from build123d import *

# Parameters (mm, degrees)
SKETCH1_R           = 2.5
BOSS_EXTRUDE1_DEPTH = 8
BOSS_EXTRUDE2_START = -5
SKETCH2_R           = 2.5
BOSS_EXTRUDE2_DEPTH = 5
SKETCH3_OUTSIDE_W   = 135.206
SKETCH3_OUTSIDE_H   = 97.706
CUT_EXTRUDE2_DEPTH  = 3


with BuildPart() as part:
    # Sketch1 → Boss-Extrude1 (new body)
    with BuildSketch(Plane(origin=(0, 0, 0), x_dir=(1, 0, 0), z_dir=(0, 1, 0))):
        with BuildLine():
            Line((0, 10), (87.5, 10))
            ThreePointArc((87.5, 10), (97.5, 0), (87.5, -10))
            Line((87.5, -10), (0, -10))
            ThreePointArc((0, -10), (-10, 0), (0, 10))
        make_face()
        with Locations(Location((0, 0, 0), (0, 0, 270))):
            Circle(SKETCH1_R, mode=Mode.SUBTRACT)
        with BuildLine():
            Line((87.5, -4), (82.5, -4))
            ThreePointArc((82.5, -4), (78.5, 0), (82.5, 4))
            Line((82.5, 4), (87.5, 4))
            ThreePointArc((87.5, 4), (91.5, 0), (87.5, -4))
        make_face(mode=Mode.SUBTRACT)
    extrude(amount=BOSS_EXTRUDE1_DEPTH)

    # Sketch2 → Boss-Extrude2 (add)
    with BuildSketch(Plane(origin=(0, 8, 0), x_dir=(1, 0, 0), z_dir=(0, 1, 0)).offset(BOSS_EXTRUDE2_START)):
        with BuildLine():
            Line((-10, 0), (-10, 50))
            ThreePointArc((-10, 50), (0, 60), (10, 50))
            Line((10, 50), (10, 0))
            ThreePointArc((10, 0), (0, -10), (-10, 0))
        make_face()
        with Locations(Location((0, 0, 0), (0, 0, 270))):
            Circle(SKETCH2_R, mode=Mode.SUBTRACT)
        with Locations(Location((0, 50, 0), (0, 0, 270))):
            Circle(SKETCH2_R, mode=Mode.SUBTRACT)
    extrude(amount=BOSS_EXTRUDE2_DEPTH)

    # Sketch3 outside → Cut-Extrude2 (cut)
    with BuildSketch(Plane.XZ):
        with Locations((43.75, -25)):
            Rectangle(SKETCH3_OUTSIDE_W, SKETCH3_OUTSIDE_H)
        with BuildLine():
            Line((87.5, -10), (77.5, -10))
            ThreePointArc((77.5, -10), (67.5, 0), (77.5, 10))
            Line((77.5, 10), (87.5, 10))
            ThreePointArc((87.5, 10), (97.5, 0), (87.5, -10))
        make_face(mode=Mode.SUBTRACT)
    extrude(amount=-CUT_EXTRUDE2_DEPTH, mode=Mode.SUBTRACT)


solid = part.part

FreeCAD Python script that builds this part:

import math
import FreeCAD as App
import Part
import Sketcher
from FreeCAD import Vector

doc = App.newDocument("Part")
body = doc.addObject("PartDesign::Body", "Body")

# Sketch on XZ plane
sketch1 = body.newObject("Sketcher::SketchObject", "Sketch")
sketch1.AttachmentSupport = (doc.getObject("XZ_Plane"), [""])
sketch1.MapMode = "FlatFace"
sketch1.addGeometry(Part.LineSegment(Vector(87.5, -10, 0), Vector(0, -10, 0)), False)
sketch1.addGeometry(Part.ArcOfCircle(Part.Circle(Vector(0, 0, 0), Vector(0, 0, 1), 10), math.radians(90), math.radians(270)), False)
sketch1.addGeometry(Part.LineSegment(Vector(0, 10, 0), Vector(87.5, 10, 0)), False)
sketch1.addGeometry(Part.ArcOfCircle(Part.Circle(Vector(87.5, 0, 0), Vector(0, 0, 1), 10), math.radians(-90), math.radians(90)), False)
sketch1.addGeometry(Part.LineSegment(Vector(87.5, 4, 0), Vector(82.5, 4, 0)), False)
sketch1.addGeometry(Part.ArcOfCircle(Part.Circle(Vector(82.5, 0, 0), Vector(0, 0, 1), 4), math.radians(90), math.radians(270)), False)
sketch1.addGeometry(Part.LineSegment(Vector(82.5, -4, 0), Vector(87.5, -4, 0)), False)
sketch1.addGeometry(Part.ArcOfCircle(Part.Circle(Vector(87.5, 0, 0), Vector(0, 0, 1), 4), math.radians(-90), math.radians(90)), False)
sketch1.addGeometry(Part.Circle(Vector(0, 0, 0), Vector(0, 0, 1), 2.5), False)
sketch1.addConstraint(Sketcher.Constraint("Tangent", 0, 2, 1, 2))
sketch1.addConstraint(Sketcher.Constraint("Tangent", 1, 1, 2, 1))
sketch1.addConstraint(Sketcher.Constraint("Tangent", 2, 2, 3, 2))
sketch1.addConstraint(Sketcher.Constraint("Tangent", 3, 1, 0, 1))
sketch1.addConstraint(Sketcher.Constraint("Tangent", 4, 2, 5, 1))
sketch1.addConstraint(Sketcher.Constraint("Tangent", 5, 2, 6, 1))
sketch1.addConstraint(Sketcher.Constraint("Tangent", 6, 2, 7, 1))
sketch1.addConstraint(Sketcher.Constraint("Tangent", 7, 2, 4, 1))
sketch1.addConstraint(Sketcher.Constraint("Horizontal", 0))
sketch1.addConstraint(Sketcher.Constraint("Horizontal", 2))
sketch1.addConstraint(Sketcher.Constraint("Horizontal", 4))
sketch1.addConstraint(Sketcher.Constraint("Horizontal", 6))
sketch1.addConstraint(Sketcher.Constraint("Coincident", 1, 3, -1, 1))
sketch1.addConstraint(Sketcher.Constraint("Coincident", 8, 3, -1, 1))
sketch1.addConstraint(Sketcher.Constraint("Coincident", 7, 3, 3, 3))
sketch1.addConstraint(Sketcher.Constraint("Diameter", 8, 5.0))
sketch1.addConstraint(Sketcher.Constraint("Radius", 1, 10.0))
sketch1.addConstraint(Sketcher.Constraint("Radius", 5, 4.0))
sketch1.addConstraint(Sketcher.Constraint("DistanceX", 4, 2, 4, 1, 5.0))
sketch1.addConstraint(Sketcher.Constraint("DistanceX", 0, 2, 0, 1, 87.5))
pad1 = body.newObject("PartDesign::Pad", "Pad")
pad1.Profile = sketch1
pad1.Length = 8
pad1.Reversed = True

# Sketch on XZ plane
sketch2 = body.newObject("Sketcher::SketchObject", "Sketch001")
sketch2.AttachmentSupport = (doc.getObject("XZ_Plane"), [""])
sketch2.MapMode = "FlatFace"
sketch2.AttachmentOffset = App.Placement(Vector(0, 0, -3), App.Rotation())
sketch2.addGeometry(Part.LineSegment(Vector(-10, -50, 0), Vector(-10, 0, 0)), False)
sketch2.addGeometry(Part.ArcOfCircle(Part.Circle(Vector(0, 0, 0), Vector(0, 0, 1), 10), math.radians(0), math.radians(180)), False)
sketch2.addGeometry(Part.LineSegment(Vector(10, 0, 0), Vector(10, -50, 0)), False)
sketch2.addGeometry(Part.ArcOfCircle(Part.Circle(Vector(0, -50, 0), Vector(0, 0, 1), 10), math.radians(180), math.radians(360)), False)
sketch2.addGeometry(Part.Circle(Vector(0, 0, 0), Vector(0, 0, 1), 2.5), False)
sketch2.addGeometry(Part.Circle(Vector(0, -50, 0), Vector(0, 0, 1), 2.5), False)
sketch2.addConstraint(Sketcher.Constraint("Tangent", 0, 2, 1, 2))
sketch2.addConstraint(Sketcher.Constraint("Tangent", 1, 1, 2, 1))
sketch2.addConstraint(Sketcher.Constraint("Tangent", 2, 2, 3, 2))
sketch2.addConstraint(Sketcher.Constraint("Tangent", 3, 1, 0, 1))
sketch2.addConstraint(Sketcher.Constraint("Vertical", 0))
sketch2.addConstraint(Sketcher.Constraint("Vertical", 2))
sketch2.addConstraint(Sketcher.Constraint("Coincident", 1, 3, -1, 1))
sketch2.addConstraint(Sketcher.Constraint("Coincident", 4, 3, -1, 1))
sketch2.addConstraint(Sketcher.Constraint("Coincident", 5, 3, 3, 3))
sketch2.addConstraint(Sketcher.Constraint("Equal", 4, 5))
sketch2.addConstraint(Sketcher.Constraint("Diameter", 4, 5.0))
sketch2.addConstraint(Sketcher.Constraint("Radius", 1, 10.0))
sketch2.addConstraint(Sketcher.Constraint("DistanceY", 0, 1, 0, 2, 50.0))
pad2 = body.newObject("PartDesign::Pad", "Pad001")
pad2.Profile = sketch2
pad2.Length = 5
pad2.Reversed = True

# Sketch on XZ plane
sketch3 = body.newObject("Sketcher::SketchObject", "Sketch002")
sketch3.AttachmentSupport = (doc.getObject("XZ_Plane"), [""])
sketch3.MapMode = "FlatFace"
sketch3.addGeometry(Part.LineSegment(Vector(-24, 24, 0), Vector(-24, -74, 0)), False)
sketch3.addGeometry(Part.LineSegment(Vector(-24, -74, 0), Vector(111, -74, 0)), False)
sketch3.addGeometry(Part.LineSegment(Vector(111, -74, 0), Vector(111, 24, 0)), False)
sketch3.addGeometry(Part.LineSegment(Vector(111, 24, 0), Vector(-24, 24, 0)), False)
sketch3.addGeometry(Part.ArcOfCircle(Part.Circle(Vector(88, 0, 0), Vector(0, 0, 1), 10), math.radians(-90), math.radians(90)), False)
sketch3.addGeometry(Part.LineSegment(Vector(88, -10, 0), Vector(78, -10, 0)), False)
sketch3.addGeometry(Part.ArcOfCircle(Part.Circle(Vector(78, 0, 0), Vector(0, 0, 1), 10), math.radians(90), math.radians(270)), False)
sketch3.addGeometry(Part.LineSegment(Vector(78, 10, 0), Vector(88, 10, 0)), False)
sketch3.addConstraint(Sketcher.Constraint("Coincident", 0, 2, 1, 1))
sketch3.addConstraint(Sketcher.Constraint("Coincident", 1, 2, 2, 1))
sketch3.addConstraint(Sketcher.Constraint("Coincident", 2, 2, 3, 1))
sketch3.addConstraint(Sketcher.Constraint("Coincident", 3, 2, 0, 1))
sketch3.addConstraint(Sketcher.Constraint("Tangent", 4, 1, 5, 1))
sketch3.addConstraint(Sketcher.Constraint("Tangent", 5, 2, 6, 2))
sketch3.addConstraint(Sketcher.Constraint("Tangent", 6, 1, 7, 1))
sketch3.addConstraint(Sketcher.Constraint("Tangent", 7, 2, 4, 2))
sketch3.addConstraint(Sketcher.Constraint("Vertical", 0))
sketch3.addConstraint(Sketcher.Constraint("Horizontal", 1))
sketch3.addConstraint(Sketcher.Constraint("Vertical", 2))
sketch3.addConstraint(Sketcher.Constraint("Horizontal", 3))
sketch3.addConstraint(Sketcher.Constraint("Horizontal", 5))
sketch3.addConstraint(Sketcher.Constraint("Horizontal", 7))
sketch3.addConstraint(Sketcher.Constraint("PointOnObject", 4, 3, -1))
sketch3.addConstraint(Sketcher.Constraint("Radius", 4, 10.0))
sketch3.addConstraint(Sketcher.Constraint("DistanceX", 5, 2, 5, 1, 10.0))
sketch3.addConstraint(Sketcher.Constraint("DistanceX", -1, 1, 4, 3, 87.5))
sketch3.addConstraint(Sketcher.Constraint("DistanceX", 1, 1, 1, 2, 135.206))
sketch3.addConstraint(Sketcher.Constraint("DistanceY", 0, 2, 0, 1, 97.706))
sketch3.addConstraint(Sketcher.Constraint("DistanceX", 0, 2, -1, 1, 23.853))
sketch3.addConstraint(Sketcher.Constraint("DistanceY", 0, 2, -1, 1, 73.853))
pocket1 = body.newObject("PartDesign::Pocket", "Pocket")
pocket1.Profile = sketch3
pocket1.Length = 3

doc.recompute()
